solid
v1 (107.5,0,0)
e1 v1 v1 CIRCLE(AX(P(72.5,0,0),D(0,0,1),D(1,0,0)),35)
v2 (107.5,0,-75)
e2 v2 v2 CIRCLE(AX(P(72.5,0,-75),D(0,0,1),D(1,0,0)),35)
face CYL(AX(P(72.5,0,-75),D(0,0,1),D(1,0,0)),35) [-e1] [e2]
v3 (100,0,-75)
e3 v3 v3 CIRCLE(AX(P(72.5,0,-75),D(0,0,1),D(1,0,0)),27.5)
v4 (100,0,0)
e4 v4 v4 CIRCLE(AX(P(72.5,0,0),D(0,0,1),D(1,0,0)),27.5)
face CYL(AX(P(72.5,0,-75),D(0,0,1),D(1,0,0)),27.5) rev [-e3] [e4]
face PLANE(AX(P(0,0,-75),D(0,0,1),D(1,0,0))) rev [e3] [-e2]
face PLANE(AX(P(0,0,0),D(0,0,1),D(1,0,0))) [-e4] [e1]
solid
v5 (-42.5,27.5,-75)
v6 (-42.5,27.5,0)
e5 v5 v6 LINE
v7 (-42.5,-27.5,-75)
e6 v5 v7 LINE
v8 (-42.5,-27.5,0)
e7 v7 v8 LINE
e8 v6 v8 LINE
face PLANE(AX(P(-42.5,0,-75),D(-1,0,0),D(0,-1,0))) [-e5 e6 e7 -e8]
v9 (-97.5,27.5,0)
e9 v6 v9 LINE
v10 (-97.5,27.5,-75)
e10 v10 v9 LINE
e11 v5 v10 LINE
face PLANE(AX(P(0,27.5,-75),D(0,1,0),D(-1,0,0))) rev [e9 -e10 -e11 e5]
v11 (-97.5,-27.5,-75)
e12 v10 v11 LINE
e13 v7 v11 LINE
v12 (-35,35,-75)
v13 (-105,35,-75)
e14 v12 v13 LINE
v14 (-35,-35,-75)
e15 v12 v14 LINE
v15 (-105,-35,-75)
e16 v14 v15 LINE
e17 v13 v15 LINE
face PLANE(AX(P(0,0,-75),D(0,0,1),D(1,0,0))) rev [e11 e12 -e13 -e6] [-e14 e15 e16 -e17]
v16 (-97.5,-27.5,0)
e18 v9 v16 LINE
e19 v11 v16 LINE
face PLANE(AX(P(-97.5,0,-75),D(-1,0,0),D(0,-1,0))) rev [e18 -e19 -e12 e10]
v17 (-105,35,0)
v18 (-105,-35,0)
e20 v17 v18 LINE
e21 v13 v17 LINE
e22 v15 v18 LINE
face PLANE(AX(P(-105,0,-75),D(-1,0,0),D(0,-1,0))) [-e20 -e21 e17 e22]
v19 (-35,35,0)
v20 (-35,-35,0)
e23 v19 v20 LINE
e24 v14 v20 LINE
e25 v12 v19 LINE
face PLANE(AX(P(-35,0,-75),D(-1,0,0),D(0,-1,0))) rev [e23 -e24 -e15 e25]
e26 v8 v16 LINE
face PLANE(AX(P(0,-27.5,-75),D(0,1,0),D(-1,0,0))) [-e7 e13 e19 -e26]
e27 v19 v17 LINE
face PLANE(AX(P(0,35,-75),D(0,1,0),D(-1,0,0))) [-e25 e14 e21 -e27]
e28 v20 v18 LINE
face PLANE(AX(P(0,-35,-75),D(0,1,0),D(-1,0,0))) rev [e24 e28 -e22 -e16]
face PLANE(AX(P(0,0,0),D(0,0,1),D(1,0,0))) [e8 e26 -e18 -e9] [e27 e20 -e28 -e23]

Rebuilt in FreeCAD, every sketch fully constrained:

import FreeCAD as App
import Part
import Sketcher

doc = App.newDocument("Part")
body = doc.addObject("PartDesign::Body", "Body")

sketch1 = doc.addObject("Sketcher::SketchObject", "Sketch")
body.addObject(sketch1)
sketch1.AttachmentSupport = (doc.XY_Plane, [""])
sketch1.MapMode = "FlatFace"
sketch1.addGeometry(Part.LineSegment(App.Vector(-105, 35, 0), App.Vector(-105, -35, 0)), False)
sketch1.addGeometry(Part.LineSegment(App.Vector(-105, -35, 0), App.Vector(-35, -35, 0)), False)
sketch1.addGeometry(Part.LineSegment(App.Vector(-35, -35, 0), App.Vector(-35, 35, 0)), False)
sketch1.addGeometry(Part.LineSegment(App.Vector(-35, 35, 0), App.Vector(-105, 35, 0)), False)
sketch1.addGeometry(Part.LineSegment(App.Vector(-42, -28, 0), App.Vector(-98, -28, 0)), False)
sketch1.addGeometry(Part.LineSegment(App.Vector(-98, -28, 0), App.Vector(-98, 28, 0)), False)
sketch1.addGeometry(Part.LineSegment(App.Vector(-98, 28, 0), App.Vector(-42, 28, 0)), False)
sketch1.addGeometry(Part.LineSegment(App.Vector(-42, 28, 0), App.Vector(-42, -28, 0)), False)
sketch1.addConstraint(Sketcher.Constraint("Coincident", 0, 2, 1, 1))
sketch1.addConstraint(Sketcher.Constraint("Coincident", 1, 2, 2, 1))
sketch1.addConstraint(Sketcher.Constraint("Coincident", 2, 2, 3, 1))
sketch1.addConstraint(Sketcher.Constraint("Coincident", 3, 2, 0, 1))
sketch1.addConstraint(Sketcher.Constraint("Coincident", 4, 2, 5, 1))
sketch1.addConstraint(Sketcher.Constraint("Coincident", 5, 2, 6, 1))
sketch1.addConstraint(Sketcher.Constraint("Coincident", 6, 2, 7, 1))
sketch1.addConstraint(Sketcher.Constraint("Coincident", 7, 2, 4, 1))
sketch1.addConstraint(Sketcher.Constraint("Vertical", 0))
sketch1.addConstraint(Sketcher.Constraint("Horizontal", 1))
sketch1.addConstraint(Sketcher.Constraint("Vertical", 2))
sketch1.addConstraint(Sketcher.Constraint("Horizontal", 3))
sketch1.addConstraint(Sketcher.Constraint("Horizontal", 4))
sketch1.addConstraint(Sketcher.Constraint("Vertical", 5))
sketch1.addConstraint(Sketcher.Constraint("Horizontal", 6))
sketch1.addConstraint(Sketcher.Constraint("Vertical", 7))
sketch1.addConstraint(Sketcher.Constraint("Equal", 3, 0))
sketch1.addConstraint(Sketcher.Constraint("Equal", 6, 5))
sketch1.addConstraint(Sketcher.Constraint("DistanceX", 1, 1, 1, 2, 70.0))
sketch1.addConstraint(Sketcher.Constraint("DistanceX", 4, 2, 4, 1, 55.0))
sketch1.addConstraint(Sketcher.Constraint("DistanceX", 0, 2, -1, 1, 105.0))
sketch1.addConstraint(Sketcher.Constraint("DistanceY", 0, 2, -1, 1, 35.0))
sketch1.addConstraint(Sketcher.Constraint("DistanceX", 4, 2, -1, 1, 97.5))
sketch1.addConstraint(Sketcher.Constraint("DistanceY", 4, 2, -1, 1, 27.5))
pad1 = doc.addObject("PartDesign::Pad", "Pad")
body.addObject(pad1)
pad1.Profile = sketch1
pad1.Length = 75
pad1.Reversed = True
body2 = doc.addObject("PartDesign::Body", "Body001")

sketch2 = doc.addObject("Sketcher::SketchObject", "Sketch001")
body2.addObject(sketch2)
sketch2.AttachmentSupport = (doc.getObject("XY_Plane001"), [""])
sketch2.MapMode = "FlatFace"
sketch2.addGeometry(Part.Circle(App.Vector(72, 0, 0), App.Vector(0, 0, 1), 35), False)
sketch2.addGeometry(Part.Circle(App.Vector(72, 0, 0), App.Vector(0, 0, 1), 28), False)
sketch2.addConstraint(Sketcher.Constraint("Coincident", 1, 3, 0, 3))
sketch2.addConstraint(Sketcher.Constraint("PointOnObject", 0, 3, -1))
sketch2.addConstraint(Sketcher.Constraint("Diameter", 0, 70.0))
sketch2.addConstraint(Sketcher.Constraint("Diameter", 1, 55.0))
sketch2.addConstraint(Sketcher.Constraint("DistanceX", -1, 1, 0, 3, 72.5))
pad2 = doc.addObject("PartDesign::Pad", "Pad001")
body2.addObject(pad2)
pad2.Profile = sketch2
pad2.Length = 75
pad2.Reversed = True

doc.recompute()
